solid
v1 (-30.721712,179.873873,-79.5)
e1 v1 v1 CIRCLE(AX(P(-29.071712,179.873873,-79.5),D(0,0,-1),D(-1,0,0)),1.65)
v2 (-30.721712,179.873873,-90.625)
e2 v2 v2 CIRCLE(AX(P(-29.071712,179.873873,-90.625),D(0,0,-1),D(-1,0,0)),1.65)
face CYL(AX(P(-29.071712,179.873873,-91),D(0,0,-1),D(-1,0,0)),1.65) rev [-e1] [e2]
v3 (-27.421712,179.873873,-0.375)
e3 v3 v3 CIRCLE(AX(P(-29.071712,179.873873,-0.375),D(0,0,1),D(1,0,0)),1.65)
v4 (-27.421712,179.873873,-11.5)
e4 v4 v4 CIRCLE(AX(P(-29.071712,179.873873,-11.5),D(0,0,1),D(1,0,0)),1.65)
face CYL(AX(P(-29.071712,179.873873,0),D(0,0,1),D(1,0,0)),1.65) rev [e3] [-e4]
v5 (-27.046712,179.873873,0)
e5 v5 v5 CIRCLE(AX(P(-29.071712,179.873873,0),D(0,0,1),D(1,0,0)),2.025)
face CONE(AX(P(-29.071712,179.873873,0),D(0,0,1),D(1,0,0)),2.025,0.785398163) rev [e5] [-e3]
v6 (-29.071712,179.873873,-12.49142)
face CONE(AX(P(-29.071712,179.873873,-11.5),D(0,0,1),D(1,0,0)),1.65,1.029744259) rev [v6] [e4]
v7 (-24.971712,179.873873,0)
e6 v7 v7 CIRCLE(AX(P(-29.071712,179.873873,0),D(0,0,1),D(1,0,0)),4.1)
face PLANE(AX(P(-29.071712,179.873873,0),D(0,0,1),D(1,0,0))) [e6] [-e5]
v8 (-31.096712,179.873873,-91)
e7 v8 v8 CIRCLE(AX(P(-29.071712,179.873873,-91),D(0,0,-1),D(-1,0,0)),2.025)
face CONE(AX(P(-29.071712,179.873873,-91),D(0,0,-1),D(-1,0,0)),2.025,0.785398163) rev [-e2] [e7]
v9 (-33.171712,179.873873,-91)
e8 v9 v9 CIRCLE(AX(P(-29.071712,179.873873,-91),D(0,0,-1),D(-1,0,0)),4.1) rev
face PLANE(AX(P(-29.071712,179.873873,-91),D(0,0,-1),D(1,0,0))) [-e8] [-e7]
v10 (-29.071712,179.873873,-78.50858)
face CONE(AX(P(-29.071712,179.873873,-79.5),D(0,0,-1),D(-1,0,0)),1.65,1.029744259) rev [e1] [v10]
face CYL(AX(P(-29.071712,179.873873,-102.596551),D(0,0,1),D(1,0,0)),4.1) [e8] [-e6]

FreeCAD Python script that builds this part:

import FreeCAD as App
import Part
import Sketcher

V = App.Vector

doc = App.newDocument("Part")
body = doc.addObject("PartDesign::Body", "Body")

sketch1 = doc.addObject("Sketcher::SketchObject", "Sketch")
body.addObject(sketch1)
sketch1.AttachmentSupport = (doc.XY_Plane, [""])
sketch1.MapMode = "FlatFace"
sketch1.addGeometry(Part.Circle(V(-29.071712, 179.873873, 0), V(0, 0, 1), 4.1), False)
sketch1.addConstraint(Sketcher.Constraint("Diameter", 0, 8.2))
sketch1.addConstraint(Sketcher.Constraint("DistanceX", 0, 3, -1, 1, 29.071712))
sketch1.addConstraint(Sketcher.Constraint("DistanceY", -1, 1, 0, 3, 179.873873))
pad1 = doc.addObject("PartDesign::Pad", "Pad")
body.addObject(pad1)
pad1.Profile = sketch1
pad1.Length = 91
pad1.Reversed = True

sketch2 = doc.addObject("Sketcher::SketchObject", "Sketch001")
body.addObject(sketch2)
sketch2.AttachmentSupport = (doc.XY_Plane, [""])
sketch2.MapMode = "FlatFace"
sketch2.addGeometry(Part.Circle(V(-29.071712, 179.873873, 0), V(0, 0, 1), 1.65), False)
sketch2.addConstraint(Sketcher.Constraint("Diameter", 0, 3.3))
sketch2.addConstraint(Sketcher.Constraint("DistanceX", 0, 3, -1, 1, 29.071712))
sketch2.addConstraint(Sketcher.Constraint("DistanceY", -1, 1, 0, 3, 179.873873))
doc.recompute()
hole = doc.addObject("PartDesign::Hole", "Hole")
body.addObject(hole)
hole.Profile = sketch2
hole.ThreadType = "None"
hole.Diameter = 3.3
hole.DepthType = "Dimension"
hole.Depth = 11.5
hole.DrillPoint = "Angled"
hole.DrillPointAngle = 118
hole.HoleCutType = "Countersink"
hole.HoleCutDiameter = 4.05
hole.HoleCutCountersinkAngle = 90

sketch3 = doc.addObject("Sketcher::SketchObject", "Sketch002")
body.addObject(sketch3)
sketch3.AttachmentSupport = (doc.XY_Plane, [""])
sketch3.MapMode = "FlatFace"
sketch3.AttachmentOffset = App.Placement(V(0, 0, -91), App.Rotation())
sketch3.addGeometry(Part.Circle(V(-29.071712, 179.873873, 0), V(0, 0, 1), 1.65), False)
sketch3.addConstraint(Sketcher.Constraint("Diameter", 0, 3.3))
sketch3.addConstraint(Sketcher.Constraint("DistanceX", 0, 3, -1, 1, 29.071712))
sketch3.addConstraint(Sketcher.Constraint("DistanceY", -1, 1, 0, 3, 179.873873))
doc.recompute()
hole2 = doc.addObject("PartDesign::Hole", "Hole001")
body.addObject(hole2)
hole2.Profile = sketch3
hole2.ThreadType = "None"
hole2.Diameter = 3.3
hole2.DepthType = "Dimension"
hole2.Depth = 11.5
hole2.DrillPoint = "Angled"
hole2.DrillPointAngle = 118
hole2.HoleCutType = "Countersink"
hole2.HoleCutDiameter = 4.05
hole2.HoleCutCountersinkAngle = 90
hole2.Reversed = True

doc.recompute()
